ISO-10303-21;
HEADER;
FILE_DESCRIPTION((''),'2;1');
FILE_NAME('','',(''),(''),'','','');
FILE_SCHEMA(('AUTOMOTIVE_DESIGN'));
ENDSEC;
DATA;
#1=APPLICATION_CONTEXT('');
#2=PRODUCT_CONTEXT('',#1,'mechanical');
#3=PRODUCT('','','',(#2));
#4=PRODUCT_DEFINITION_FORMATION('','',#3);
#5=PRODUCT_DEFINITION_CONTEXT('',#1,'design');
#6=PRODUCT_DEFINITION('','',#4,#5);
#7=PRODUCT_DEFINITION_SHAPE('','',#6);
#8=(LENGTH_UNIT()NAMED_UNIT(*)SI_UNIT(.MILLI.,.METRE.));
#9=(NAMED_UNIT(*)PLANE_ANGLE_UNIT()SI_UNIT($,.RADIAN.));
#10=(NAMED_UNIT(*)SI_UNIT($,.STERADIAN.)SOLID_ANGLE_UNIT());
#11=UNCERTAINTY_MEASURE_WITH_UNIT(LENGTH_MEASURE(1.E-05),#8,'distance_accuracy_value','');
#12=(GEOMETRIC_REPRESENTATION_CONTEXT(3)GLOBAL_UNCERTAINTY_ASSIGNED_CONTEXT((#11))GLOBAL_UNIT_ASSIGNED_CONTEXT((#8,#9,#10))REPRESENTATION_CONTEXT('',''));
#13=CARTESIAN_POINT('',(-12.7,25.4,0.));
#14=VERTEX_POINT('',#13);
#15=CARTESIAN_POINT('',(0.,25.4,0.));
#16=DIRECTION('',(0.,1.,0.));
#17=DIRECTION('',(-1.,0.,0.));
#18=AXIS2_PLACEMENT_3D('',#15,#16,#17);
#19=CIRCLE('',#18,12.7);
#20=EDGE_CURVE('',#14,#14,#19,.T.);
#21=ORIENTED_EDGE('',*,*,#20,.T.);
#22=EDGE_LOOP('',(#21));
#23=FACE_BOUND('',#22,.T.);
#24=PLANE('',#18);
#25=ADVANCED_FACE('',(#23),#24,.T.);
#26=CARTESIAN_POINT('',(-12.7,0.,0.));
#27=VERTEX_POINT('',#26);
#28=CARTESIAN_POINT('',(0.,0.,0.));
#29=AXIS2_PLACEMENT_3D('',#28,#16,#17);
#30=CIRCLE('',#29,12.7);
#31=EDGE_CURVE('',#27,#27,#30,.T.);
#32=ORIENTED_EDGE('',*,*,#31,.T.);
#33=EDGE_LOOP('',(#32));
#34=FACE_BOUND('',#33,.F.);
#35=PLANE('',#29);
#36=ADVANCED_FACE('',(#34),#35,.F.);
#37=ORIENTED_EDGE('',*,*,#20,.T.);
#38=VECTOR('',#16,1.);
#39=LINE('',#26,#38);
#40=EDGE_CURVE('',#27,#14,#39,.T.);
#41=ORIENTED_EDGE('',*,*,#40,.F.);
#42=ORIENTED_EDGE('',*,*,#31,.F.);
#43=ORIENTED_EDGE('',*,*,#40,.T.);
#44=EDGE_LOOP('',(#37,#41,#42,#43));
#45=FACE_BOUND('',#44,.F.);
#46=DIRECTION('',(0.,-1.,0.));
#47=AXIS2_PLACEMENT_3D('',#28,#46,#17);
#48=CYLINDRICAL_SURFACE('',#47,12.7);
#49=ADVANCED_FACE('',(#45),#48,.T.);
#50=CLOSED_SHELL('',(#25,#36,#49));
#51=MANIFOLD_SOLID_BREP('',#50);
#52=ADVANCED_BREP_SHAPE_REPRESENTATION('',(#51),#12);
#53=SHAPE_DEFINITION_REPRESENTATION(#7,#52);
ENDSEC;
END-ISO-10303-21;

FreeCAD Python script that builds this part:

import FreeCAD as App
import Part
import Sketcher
from FreeCAD import Vector
Q = App.Units.Quantity

doc = App.newDocument("Part")
body = doc.addObject("PartDesign::Body", "Body")

# Sketch on XZ plane
sketch1 = body.newObject("Sketcher::SketchObject", "Sketch")
sketch1.AttachmentSupport = (doc.getObject("XZ_Plane"), [""])
sketch1.MapMode = "FlatFace"
sketch1.addGeometry(Part.Circle(Vector(0, 0, 0), Vector(0, 0, 1), 13), False)
sketch1.addConstraint([
    Sketcher.Constraint("Coincident", 0, 3, -1, 1),
    Sketcher.Constraint("Diameter", 0, Q("1 in")),
])
pad1 = body.newObject("PartDesign::Pad", "Pad")
pad1.Profile = sketch1
pad1.Length = Q("1 in")
pad1.Reversed = True

doc.recompute()
